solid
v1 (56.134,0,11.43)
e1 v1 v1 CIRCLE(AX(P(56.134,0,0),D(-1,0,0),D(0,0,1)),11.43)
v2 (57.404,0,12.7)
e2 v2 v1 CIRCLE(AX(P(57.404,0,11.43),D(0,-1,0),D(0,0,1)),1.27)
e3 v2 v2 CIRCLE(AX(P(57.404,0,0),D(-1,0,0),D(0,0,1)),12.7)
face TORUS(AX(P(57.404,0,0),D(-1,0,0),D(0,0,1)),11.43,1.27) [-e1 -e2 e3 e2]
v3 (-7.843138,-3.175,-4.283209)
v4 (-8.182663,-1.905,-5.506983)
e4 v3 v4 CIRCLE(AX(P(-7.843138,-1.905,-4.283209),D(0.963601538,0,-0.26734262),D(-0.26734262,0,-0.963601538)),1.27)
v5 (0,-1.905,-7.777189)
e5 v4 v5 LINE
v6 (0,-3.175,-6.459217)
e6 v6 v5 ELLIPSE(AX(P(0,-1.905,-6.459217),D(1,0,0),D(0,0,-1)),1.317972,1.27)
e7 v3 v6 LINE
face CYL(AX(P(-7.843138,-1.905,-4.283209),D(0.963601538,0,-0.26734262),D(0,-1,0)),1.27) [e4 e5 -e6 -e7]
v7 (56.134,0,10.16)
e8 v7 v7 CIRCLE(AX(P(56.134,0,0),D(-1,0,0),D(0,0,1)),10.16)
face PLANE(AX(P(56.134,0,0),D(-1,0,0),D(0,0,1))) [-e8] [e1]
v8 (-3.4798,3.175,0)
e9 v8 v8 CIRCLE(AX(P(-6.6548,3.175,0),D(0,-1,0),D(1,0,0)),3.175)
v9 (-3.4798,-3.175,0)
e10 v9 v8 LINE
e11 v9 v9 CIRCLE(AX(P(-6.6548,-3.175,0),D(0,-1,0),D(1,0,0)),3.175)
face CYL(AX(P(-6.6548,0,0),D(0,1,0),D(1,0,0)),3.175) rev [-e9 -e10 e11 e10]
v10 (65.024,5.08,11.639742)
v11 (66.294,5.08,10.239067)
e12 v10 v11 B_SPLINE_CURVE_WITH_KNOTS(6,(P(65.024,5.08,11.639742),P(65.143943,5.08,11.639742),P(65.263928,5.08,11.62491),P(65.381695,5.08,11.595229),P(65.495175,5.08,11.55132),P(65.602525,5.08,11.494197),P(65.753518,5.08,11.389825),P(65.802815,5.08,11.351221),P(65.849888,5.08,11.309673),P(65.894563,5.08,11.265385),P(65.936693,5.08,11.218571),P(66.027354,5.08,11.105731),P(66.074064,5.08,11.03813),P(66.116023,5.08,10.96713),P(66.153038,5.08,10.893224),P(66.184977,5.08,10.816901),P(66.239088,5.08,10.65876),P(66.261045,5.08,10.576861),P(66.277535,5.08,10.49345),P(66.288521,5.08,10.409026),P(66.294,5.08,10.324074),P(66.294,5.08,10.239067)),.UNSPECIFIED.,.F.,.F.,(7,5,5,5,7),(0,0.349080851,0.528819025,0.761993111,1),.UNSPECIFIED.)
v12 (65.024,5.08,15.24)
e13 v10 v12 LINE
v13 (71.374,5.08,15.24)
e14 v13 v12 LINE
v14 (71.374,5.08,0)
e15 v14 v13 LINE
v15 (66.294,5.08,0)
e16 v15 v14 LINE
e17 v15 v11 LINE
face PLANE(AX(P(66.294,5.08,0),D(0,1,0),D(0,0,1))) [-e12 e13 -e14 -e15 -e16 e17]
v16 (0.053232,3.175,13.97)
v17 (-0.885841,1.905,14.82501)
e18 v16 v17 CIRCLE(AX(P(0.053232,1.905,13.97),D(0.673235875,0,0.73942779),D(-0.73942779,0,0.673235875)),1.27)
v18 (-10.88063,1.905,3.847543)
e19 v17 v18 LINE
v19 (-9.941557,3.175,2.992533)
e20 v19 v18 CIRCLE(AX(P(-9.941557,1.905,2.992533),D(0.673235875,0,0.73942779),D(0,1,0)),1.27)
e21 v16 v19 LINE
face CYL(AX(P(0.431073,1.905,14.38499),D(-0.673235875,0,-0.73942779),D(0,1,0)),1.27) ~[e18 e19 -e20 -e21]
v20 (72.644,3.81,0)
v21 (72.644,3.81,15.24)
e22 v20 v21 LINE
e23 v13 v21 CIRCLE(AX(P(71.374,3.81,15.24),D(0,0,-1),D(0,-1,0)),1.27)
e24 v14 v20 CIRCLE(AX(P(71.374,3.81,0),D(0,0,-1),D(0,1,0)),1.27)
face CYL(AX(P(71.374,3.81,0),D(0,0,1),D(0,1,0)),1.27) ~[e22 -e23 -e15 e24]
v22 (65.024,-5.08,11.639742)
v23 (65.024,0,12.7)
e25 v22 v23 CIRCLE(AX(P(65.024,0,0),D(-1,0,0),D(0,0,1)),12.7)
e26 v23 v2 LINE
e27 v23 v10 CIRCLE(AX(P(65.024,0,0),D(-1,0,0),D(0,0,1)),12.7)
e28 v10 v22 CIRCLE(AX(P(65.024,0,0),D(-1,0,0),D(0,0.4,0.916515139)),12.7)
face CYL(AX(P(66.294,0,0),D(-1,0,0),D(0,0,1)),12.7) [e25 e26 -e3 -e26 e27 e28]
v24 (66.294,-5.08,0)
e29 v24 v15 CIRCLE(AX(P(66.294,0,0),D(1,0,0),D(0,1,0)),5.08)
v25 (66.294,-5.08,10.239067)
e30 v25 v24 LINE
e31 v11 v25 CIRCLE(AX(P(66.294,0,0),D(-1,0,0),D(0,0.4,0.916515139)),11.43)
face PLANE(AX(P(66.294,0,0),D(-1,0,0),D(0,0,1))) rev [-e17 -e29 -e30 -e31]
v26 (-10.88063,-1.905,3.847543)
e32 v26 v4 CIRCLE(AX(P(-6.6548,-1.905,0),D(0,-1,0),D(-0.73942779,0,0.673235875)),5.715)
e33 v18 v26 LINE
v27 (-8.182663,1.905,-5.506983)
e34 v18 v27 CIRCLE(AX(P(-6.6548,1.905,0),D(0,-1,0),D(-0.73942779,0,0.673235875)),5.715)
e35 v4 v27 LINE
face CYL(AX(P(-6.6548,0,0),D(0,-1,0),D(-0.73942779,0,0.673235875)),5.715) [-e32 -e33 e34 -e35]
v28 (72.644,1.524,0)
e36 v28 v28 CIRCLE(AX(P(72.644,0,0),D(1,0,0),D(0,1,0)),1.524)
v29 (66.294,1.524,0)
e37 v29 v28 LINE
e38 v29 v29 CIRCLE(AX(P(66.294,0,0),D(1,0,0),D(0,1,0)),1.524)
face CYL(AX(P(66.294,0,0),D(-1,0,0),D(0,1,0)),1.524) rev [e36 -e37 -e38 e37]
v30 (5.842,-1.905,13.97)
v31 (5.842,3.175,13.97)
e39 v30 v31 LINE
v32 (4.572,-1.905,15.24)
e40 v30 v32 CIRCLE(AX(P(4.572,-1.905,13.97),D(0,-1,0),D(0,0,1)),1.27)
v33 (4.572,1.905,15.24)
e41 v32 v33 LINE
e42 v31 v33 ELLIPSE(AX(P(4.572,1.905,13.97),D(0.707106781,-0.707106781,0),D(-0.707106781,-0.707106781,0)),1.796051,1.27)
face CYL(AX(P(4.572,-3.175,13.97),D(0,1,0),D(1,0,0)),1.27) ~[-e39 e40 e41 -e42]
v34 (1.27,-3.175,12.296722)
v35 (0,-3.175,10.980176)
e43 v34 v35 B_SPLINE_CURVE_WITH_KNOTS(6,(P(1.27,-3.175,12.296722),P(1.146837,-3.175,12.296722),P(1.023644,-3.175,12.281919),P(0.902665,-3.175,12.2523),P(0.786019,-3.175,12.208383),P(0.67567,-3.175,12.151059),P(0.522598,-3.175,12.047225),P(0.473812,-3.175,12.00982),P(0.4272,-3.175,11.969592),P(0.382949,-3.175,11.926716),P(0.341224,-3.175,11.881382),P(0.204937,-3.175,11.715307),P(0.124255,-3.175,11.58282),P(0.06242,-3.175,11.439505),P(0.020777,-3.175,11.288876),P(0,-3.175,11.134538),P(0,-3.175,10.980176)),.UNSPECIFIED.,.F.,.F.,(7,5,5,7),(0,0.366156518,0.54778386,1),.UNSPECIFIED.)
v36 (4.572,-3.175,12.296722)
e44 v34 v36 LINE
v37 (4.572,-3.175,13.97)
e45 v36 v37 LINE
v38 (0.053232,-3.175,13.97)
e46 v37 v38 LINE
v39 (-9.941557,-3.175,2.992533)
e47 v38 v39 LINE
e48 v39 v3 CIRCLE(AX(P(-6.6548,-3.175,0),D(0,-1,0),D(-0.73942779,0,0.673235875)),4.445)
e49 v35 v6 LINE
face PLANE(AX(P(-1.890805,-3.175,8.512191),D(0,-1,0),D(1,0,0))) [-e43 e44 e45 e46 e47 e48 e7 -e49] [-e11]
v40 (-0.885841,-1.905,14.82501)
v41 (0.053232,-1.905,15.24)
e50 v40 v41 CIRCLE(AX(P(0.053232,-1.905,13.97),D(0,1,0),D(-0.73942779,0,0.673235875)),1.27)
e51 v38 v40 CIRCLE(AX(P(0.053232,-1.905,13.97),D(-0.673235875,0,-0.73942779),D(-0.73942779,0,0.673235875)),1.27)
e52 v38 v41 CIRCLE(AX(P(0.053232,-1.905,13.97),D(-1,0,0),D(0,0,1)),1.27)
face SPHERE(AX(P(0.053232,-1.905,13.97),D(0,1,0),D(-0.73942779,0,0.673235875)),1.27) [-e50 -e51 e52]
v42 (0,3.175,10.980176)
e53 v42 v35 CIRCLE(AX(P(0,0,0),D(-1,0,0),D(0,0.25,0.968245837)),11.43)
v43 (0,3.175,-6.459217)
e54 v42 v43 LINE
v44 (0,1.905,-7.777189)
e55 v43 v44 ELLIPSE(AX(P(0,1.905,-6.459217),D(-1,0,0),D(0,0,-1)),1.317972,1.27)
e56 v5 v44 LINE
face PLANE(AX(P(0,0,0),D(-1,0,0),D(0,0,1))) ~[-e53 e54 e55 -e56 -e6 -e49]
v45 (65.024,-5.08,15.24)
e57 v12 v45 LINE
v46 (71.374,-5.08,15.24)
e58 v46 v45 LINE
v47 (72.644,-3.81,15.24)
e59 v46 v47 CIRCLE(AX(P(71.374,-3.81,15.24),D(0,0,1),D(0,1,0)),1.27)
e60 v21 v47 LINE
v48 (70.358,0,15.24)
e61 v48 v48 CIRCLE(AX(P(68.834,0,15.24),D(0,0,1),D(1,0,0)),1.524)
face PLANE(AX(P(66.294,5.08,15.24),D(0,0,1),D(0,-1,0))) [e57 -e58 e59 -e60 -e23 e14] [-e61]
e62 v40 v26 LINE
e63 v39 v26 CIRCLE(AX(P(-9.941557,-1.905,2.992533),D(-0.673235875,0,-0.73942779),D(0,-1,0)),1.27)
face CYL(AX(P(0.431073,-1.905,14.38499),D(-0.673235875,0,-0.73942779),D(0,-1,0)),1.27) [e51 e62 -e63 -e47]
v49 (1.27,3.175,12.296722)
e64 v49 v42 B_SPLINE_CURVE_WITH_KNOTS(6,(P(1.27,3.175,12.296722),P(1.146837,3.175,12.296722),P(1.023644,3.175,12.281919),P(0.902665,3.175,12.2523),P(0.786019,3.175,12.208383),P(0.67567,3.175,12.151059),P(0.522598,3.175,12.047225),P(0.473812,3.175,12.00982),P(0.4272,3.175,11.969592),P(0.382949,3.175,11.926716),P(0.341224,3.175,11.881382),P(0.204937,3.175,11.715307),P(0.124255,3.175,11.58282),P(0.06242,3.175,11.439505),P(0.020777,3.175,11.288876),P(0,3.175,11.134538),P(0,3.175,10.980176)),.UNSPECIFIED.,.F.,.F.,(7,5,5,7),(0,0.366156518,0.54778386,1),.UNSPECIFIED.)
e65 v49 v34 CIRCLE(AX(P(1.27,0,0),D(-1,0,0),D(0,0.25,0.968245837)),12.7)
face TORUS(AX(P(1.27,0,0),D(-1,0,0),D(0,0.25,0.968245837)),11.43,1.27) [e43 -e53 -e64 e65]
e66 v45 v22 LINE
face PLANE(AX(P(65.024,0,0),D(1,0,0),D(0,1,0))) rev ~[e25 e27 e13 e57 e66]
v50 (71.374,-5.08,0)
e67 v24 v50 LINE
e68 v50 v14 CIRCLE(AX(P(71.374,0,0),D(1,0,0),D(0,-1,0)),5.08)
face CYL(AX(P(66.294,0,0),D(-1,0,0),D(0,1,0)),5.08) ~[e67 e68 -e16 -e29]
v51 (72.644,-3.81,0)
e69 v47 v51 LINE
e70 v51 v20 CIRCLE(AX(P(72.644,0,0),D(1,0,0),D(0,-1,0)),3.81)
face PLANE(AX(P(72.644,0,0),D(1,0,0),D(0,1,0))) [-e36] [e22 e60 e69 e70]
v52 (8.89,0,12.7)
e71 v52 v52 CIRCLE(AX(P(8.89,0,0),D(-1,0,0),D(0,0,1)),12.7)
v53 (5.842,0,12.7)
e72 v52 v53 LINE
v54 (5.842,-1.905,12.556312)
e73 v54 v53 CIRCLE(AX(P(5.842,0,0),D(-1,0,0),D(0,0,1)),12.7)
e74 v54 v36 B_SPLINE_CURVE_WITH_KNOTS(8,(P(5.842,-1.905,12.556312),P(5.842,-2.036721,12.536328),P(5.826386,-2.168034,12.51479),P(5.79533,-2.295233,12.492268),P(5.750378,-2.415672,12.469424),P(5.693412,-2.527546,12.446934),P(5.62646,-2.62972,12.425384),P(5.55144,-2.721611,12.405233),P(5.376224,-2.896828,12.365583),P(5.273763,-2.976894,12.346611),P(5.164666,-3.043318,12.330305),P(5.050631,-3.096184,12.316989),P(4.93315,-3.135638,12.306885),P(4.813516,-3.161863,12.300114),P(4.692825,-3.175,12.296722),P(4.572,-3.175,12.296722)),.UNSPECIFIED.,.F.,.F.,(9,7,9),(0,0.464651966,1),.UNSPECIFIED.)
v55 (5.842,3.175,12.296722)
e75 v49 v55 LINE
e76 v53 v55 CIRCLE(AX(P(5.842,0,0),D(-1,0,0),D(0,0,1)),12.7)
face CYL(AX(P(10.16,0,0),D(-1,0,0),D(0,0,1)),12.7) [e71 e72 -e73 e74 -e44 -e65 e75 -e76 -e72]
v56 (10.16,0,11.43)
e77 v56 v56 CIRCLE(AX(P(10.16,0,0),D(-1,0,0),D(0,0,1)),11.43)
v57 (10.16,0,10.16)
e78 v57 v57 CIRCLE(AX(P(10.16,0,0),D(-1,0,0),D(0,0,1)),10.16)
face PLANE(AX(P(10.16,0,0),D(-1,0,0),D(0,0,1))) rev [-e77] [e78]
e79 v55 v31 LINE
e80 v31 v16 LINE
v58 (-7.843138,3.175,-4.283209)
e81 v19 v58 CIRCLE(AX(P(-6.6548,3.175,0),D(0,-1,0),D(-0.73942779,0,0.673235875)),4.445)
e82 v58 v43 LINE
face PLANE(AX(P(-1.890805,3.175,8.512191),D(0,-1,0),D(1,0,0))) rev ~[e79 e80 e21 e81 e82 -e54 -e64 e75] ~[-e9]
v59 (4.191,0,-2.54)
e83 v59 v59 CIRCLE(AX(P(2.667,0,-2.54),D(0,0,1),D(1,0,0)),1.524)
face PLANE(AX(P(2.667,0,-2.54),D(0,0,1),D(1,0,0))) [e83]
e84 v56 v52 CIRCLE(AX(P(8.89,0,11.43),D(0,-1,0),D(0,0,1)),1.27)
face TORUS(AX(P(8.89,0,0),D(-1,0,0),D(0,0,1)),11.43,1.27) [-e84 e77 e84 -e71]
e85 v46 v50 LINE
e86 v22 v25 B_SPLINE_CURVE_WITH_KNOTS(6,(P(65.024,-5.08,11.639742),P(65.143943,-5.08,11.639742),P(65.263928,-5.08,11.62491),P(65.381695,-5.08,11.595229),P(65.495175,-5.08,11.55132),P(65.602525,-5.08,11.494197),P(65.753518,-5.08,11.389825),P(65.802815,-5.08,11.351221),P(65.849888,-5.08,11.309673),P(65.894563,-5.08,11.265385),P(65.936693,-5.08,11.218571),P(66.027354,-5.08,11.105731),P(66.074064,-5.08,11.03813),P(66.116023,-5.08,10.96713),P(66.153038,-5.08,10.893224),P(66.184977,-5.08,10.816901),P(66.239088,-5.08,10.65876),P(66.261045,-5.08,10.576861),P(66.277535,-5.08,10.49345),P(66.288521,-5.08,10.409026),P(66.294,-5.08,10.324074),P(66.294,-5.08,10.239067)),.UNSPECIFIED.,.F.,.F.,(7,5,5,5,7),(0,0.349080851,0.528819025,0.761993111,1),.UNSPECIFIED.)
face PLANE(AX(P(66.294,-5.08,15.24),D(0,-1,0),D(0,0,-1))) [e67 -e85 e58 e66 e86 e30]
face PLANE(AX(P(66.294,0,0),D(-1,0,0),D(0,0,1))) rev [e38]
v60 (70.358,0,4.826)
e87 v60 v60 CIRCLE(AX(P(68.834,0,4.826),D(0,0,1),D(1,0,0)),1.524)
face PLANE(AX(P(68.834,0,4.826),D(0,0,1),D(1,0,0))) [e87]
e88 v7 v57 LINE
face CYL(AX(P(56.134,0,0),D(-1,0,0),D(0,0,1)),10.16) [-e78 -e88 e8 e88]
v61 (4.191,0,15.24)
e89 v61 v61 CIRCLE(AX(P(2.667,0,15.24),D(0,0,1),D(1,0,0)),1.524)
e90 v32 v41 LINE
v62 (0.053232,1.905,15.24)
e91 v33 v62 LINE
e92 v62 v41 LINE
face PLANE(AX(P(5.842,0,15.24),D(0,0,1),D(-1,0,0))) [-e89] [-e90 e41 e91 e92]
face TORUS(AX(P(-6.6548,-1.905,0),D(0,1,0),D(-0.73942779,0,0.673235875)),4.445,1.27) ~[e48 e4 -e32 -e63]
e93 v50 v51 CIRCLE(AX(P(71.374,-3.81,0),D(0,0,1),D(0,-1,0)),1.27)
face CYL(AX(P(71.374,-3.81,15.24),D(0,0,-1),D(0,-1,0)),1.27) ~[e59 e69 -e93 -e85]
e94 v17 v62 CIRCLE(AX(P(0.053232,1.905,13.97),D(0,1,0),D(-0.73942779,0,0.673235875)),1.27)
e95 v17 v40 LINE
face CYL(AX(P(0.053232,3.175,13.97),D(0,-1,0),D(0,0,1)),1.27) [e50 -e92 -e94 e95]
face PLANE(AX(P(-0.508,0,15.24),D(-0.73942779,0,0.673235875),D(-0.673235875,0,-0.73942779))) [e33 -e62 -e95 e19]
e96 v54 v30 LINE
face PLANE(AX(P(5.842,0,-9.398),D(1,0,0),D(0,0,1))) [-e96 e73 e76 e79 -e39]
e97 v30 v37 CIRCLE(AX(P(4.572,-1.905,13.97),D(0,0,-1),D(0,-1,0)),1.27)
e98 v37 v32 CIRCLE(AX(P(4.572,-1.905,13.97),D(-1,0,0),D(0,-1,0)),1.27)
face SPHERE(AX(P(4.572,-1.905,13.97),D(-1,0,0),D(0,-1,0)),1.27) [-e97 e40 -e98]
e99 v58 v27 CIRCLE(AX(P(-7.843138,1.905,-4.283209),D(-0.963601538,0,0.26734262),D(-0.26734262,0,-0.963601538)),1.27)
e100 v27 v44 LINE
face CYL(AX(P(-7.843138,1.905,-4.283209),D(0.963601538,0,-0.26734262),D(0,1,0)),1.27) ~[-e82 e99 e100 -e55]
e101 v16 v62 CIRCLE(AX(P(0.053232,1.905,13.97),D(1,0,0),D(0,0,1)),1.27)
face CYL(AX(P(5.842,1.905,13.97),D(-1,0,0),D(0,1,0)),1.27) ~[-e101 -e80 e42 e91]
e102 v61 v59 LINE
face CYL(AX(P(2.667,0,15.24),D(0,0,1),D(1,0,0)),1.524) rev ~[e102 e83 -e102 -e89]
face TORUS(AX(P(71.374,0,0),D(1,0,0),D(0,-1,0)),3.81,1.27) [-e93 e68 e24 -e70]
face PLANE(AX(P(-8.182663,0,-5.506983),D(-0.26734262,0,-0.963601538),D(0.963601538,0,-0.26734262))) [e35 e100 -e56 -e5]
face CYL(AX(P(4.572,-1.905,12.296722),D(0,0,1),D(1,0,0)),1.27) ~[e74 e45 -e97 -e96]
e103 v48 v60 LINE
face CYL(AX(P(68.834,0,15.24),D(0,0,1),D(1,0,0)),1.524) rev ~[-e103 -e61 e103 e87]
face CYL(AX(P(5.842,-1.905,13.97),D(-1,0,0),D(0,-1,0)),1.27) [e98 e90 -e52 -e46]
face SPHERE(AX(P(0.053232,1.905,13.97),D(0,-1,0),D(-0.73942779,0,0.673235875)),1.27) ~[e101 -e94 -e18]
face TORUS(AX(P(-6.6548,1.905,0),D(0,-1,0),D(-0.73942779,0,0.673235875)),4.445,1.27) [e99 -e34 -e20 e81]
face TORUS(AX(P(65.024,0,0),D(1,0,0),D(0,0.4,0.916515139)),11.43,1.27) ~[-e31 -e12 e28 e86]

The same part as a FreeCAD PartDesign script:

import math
import FreeCAD as App
import Part
import Sketcher

V = App.Vector
Q = App.Units.Quantity


def edges_at(feature, points):
    """Names of the edges that pass closest to the given points."""
    edges = feature.Shape.Edges
    near = lambda p: min(range(len(edges)), key=lambda i: edges[i].distToShape(Part.Vertex(*p))[0])
    return sorted({f"Edge{near(p) + 1}" for p in points})

doc = App.newDocument("Part")
body = doc.addObject("PartDesign::Body", "Body")

# Sketch on XZ plane
sketch1 = body.newObject("Sketcher::SketchObject", "Sketch")
sketch1.AttachmentSupport = (doc.getObject("XZ_Plane"), [""])
sketch1.MapMode = "FlatFace"
sketch1.addGeometry([
    Part.LineSegment(V(5.842, 12.7, 0), V(5.842, 0, 0)),  # 0
    Part.LineSegment(V(5.842, 0, 0), V(66.294, 0, 0)),  # 1
    Part.LineSegment(V(66.294, 0, 0), V(66.294, 12.7, 0)),  # 2
    Part.LineSegment(V(66.294, 12.7, 0), V(56.134, 12.7, 0)),  # 3
    Part.LineSegment(V(56.134, 12.7, 0), V(56.134, 10.16, 0)),  # 4
    Part.LineSegment(V(56.134, 10.16, 0), V(10.16, 10.16, 0)),  # 5
    Part.LineSegment(V(10.16, 10.16, 0), V(10.16, 12.7, 0)),  # 6
    Part.LineSegment(V(10.16, 12.7, 0), V(5.842, 12.7, 0)),  # 7
], False)
sketch1.addConstraint([
    Sketcher.Constraint("Coincident", 0, 2, 1, 1),
    Sketcher.Constraint("Coincident", 1, 2, 2, 1),
    Sketcher.Constraint("Coincident", 2, 2, 3, 1),
    Sketcher.Constraint("Coincident", 3, 2, 4, 1),
    Sketcher.Constraint("Coincident", 4, 2, 5, 1),
    Sketcher.Constraint("Coincident", 5, 2, 6, 1),
    Sketcher.Constraint("Coincident", 6, 2, 7, 1),
    Sketcher.Constraint("Coincident", 7, 2, 0, 1),
    Sketcher.Constraint("Vertical", 0),
    Sketcher.Constraint("Horizontal", 1),
    Sketcher.Constraint("Vertical", 2),
    Sketcher.Constraint("Horizontal", 3),
    Sketcher.Constraint("Vertical", 4),
    Sketcher.Constraint("Horizontal", 5),
    Sketcher.Constraint("Vertical", 6),
    Sketcher.Constraint("Horizontal", 7),
    Sketcher.Constraint("PointOnObject", 0, 2, -1),
    Sketcher.Constraint("Horizontal", 3, 2, 6, 2),
    Sketcher.Constraint("DistanceX", 3, 2, 3, 1, Q("0.4 in")),
    Sketcher.Constraint("DistanceY", 0, 2, 0, 1, Q("0.5 in")),
    Sketcher.Constraint("DistanceY", 4, 2, 4, 1, Q("0.1 in")),
    Sketcher.Constraint("DistanceX", 1, 1, 1, 2, Q("2.38 in")),
    Sketcher.Constraint("DistanceX", 5, 2, 5, 1, Q("1.81 in")),
    Sketcher.Constraint("DistanceX", -1, 1, 5, 2, Q("0.4 in")),
])
revolution = body.newObject("PartDesign::Revolution", "Revolution")
revolution.Profile = sketch1
revolution.ReferenceAxis = (sketch1, ["H_Axis"])
revolution.Angle = 360

# Sketch on XZ plane
sketch2 = body.newObject("Sketcher::SketchObject", "Sketch001")
sketch2.AttachmentSupport = (doc.getObject("XZ_Plane"), [""])
sketch2.MapMode = "FlatFace"
sketch2.addGeometry([
    Part.LineSegment(V(0, 12.7, 0), V(0, 0, 0)),
    Part.LineSegment(V(0, 0, 0), V(5.842, 0, 0)),
    Part.LineSegment(V(5.842, 0, 0), V(5.842, 12.7, 0)),
    Part.LineSegment(V(5.842, 12.7, 0), V(0, 12.7, 0)),
], False)
sketch2.addConstraint([
    Sketcher.Constraint("Coincident", 0, 2, 1, 1),
    Sketcher.Constraint("Coincident", 1, 2, 2, 1),
    Sketcher.Constraint("Coincident", 2, 2, 3, 1),
    Sketcher.Constraint("Coincident", 3, 2, 0, 1),
    Sketcher.Constraint("Vertical", 0),
    Sketcher.Constraint("Horizontal", 1),
    Sketcher.Constraint("Vertical", 2),
    Sketcher.Constraint("Horizontal", 3),
    Sketcher.Constraint("Coincident", 0, 2, -1, 1),
    Sketcher.Constraint("DistanceY", 0, 2, 0, 1, Q("0.5 in")),
    Sketcher.Constraint("DistanceX", 1, 1, 1, 2, Q("0.23 in")),
])
revolution2 = body.newObject("PartDesign::Revolution", "Revolution001")
revolution2.Profile = sketch2
revolution2.ReferenceAxis = (sketch2, ["H_Axis"])
revolution2.Angle = 360

# Sketch on XZ plane
sketch3 = body.newObject("Sketcher::SketchObject", "Sketch002")
sketch3.AttachmentSupport = (doc.getObject("XZ_Plane"), [""])
sketch3.MapMode = "FlatFace"
sketch3.addGeometry([
    Part.LineSegment(V(5.842, 15.24, 0), V(-0.508, 15.24, 0)),  # 0
    Part.LineSegment(V(-0.508, 15.24, 0), V(-10.88063, 3.847543, 0)),  # 1
    Part.ArcOfCircle(Part.Circle(V(-6.6548, 0, 0), V(0, 0, 1), 5.715), math.radians(137.682695), math.radians(254.493802)),  # 2
    Part.LineSegment(V(-8.182663, -5.506983, 0), V(5.842, -9.398, 0)),  # 3
    Part.LineSegment(V(5.842, -9.398, 0), V(5.842, 15.24, 0)),  # 4
    Part.Circle(V(-6.6548, 0, 0), V(0, 0, 1), 3.175),  # 5
], False)
sketch3.addConstraint([
    Sketcher.Constraint("Coincident", 0, 2, 1, 1),
    Sketcher.Constraint("Tangent", 1, 2, 2, 1),
    Sketcher.Constraint("Tangent", 2, 2, 3, 1),
    Sketcher.Constraint("Coincident", 3, 2, 4, 1),
    Sketcher.Constraint("Coincident", 4, 2, 0, 1),
    Sketcher.Constraint("Horizontal", 0),
    Sketcher.Constraint("Vertical", 4),
    Sketcher.Constraint("Coincident", 5, 3, 2, 3),
    Sketcher.Constraint("PointOnObject", 2, 3, -1),
    Sketcher.Constraint("Diameter", 5, Q("0.25 in")),
    Sketcher.Constraint("Radius", 2, Q("0.225 in")),
    Sketcher.Constraint("DistanceX", 0, 2, 0, 1, Q("0.25 in")),
    Sketcher.Constraint("DistanceY", 4, 1, 4, 2, Q("0.97 in")),
    Sketcher.Constraint("DistanceY", -1, 1, 0, 2, Q("0.6 in")),
    Sketcher.Constraint("DistanceX", 0, 2, -1, 1, Q("0.02 in")),
    Sketcher.Constraint("DistanceX", 2, 3, -1, 1, Q("0.262 in")),
])
pad1 = body.newObject("PartDesign::Pad", "Pad")
pad1.Profile = sketch3
pad1.Length = Q("0.25 in")
pad1.Midplane = True

# Sketch on YZ plane
sketch4 = body.newObject("Sketcher::SketchObject", "Sketch003")
sketch4.AttachmentSupport = (doc.getObject("YZ_Plane"), [""])
sketch4.MapMode = "FlatFace"
sketch4.AttachmentOffset = App.Placement(V(0, 0, 2.61 * 25.4), App.Rotation())
sketch4.addGeometry([
    Part.ArcOfCircle(Part.Circle(V(0, 0, 0), V(0, 0, 1), 5.08), math.radians(180), math.radians(360)),  # 0
    Part.LineSegment(V(5.08, 0, 0), V(5.08, 15.24, 0)),  # 1
    Part.LineSegment(V(5.08, 15.24, 0), V(-5.08, 15.24, 0)),  # 2
    Part.LineSegment(V(-5.08, 15.24, 0), V(-5.08, 0, 0)),  # 3
    Part.Circle(V(0, 0, 0), V(0, 0, 1), 1.524),  # 4
], False)
sketch4.addConstraint([
    Sketcher.Constraint("Tangent", 0, 2, 1, 1),
    Sketcher.Constraint("Coincident", 1, 2, 2, 1),
    Sketcher.Constraint("Coincident", 2, 2, 3, 1),
    Sketcher.Constraint("Tangent", 3, 2, 0, 1),
    Sketcher.Constraint("Vertical", 1),
    Sketcher.Constraint("Horizontal", 2),
    Sketcher.Constraint("Vertical", 3),
    Sketcher.Constraint("Coincident", 0, 3, -1, 1),
    Sketcher.Constraint("Coincident", 4, 3, -1, 1),
    Sketcher.Constraint("Radius", 0, Q("0.2 in")),
    Sketcher.Constraint("Diameter", 4, Q("0.12 in")),
    Sketcher.Constraint("DistanceY", 1, 1, 1, 2, Q("0.6 in")),
])
pad2 = body.newObject("PartDesign::Pad", "Pad001")
pad2.Profile = sketch4
pad2.Type = "TwoLengths"
pad2.Length = Q("0.25 in")
pad2.Length2 = Q("0.05 in")

# Sketch on XY plane
sketch5 = body.newObject("Sketcher::SketchObject", "Sketch004")
sketch5.AttachmentSupport = (doc.getObject("XY_Plane"), [""])
sketch5.MapMode = "FlatFace"
sketch5.AttachmentOffset = App.Placement(V(0, 0, 0.6 * 25.4), App.Rotation())
sketch5.addGeometry(Part.Circle(V(68.834, 0, 0), V(0, 0, 1), 1.524), False)
sketch5.addConstraint([
    Sketcher.Constraint("PointOnObject", 0, 3, -1),
    Sketcher.Constraint("Diameter", 0, Q("0.12 in")),
    Sketcher.Constraint("DistanceX", -1, 1, 0, 3, Q("2.71 in")),
])
pocket1 = body.newObject("PartDesign::Pocket", "Pocket")
pocket1.Profile = sketch5
pocket1.Length = Q("0.41 in")

# Sketch on XY plane
sketch6 = body.newObject("Sketcher::SketchObject", "Sketch005")
sketch6.AttachmentSupport = (doc.getObject("XY_Plane"), [""])
sketch6.MapMode = "FlatFace"
sketch6.AttachmentOffset = App.Placement(V(0, 0, 0.6 * 25.4), App.Rotation())
sketch6.addGeometry(Part.Circle(V(2.667, 0, 0), V(0, 0, 1), 1.524), False)
sketch6.addConstraint([
    Sketcher.Constraint("PointOnObject", 0, 3, -1),
    Sketcher.Constraint("Diameter", 0, Q("0.12 in")),
    Sketcher.Constraint("DistanceX", -1, 1, 0, 3, Q("0.105 in")),
])
pocket2 = body.newObject("PartDesign::Pocket", "Pocket001")
pocket2.Profile = sketch6
pocket2.Length = Q("0.7 in")
doc.recompute()

fillet = body.newObject("PartDesign::Fillet", "Fillet")
fillet.Base = (pocket2, edges_at(pocket2, [
    (66.294, 0, -12.7),
    (56.134, 0, -12.7),
    (10.16, 0, -12.7),
    (0, 0, -12.7),
]))
fillet.Radius = Q("0.05 in")
doc.recompute()

fillet2 = body.newObject("PartDesign::Fillet", "Fillet001")
fillet2.Base = (fillet, edges_at(fillet, [(72.644, -5.08, 7.62)]))
fillet2.Radius = Q("0.05 in")
doc.recompute()

fillet3 = body.newObject("PartDesign::Fillet", "Fillet002")
fillet3.Base = (fillet2, edges_at(fillet2, [
    (-12.146, -3.175, -1.584),
    (-5.694, -3.175, 9.544),
    (2.667, -3.175, 15.24),
    (5.842, -3.175, 13.768),
    (-4.091, -3.175, -6.642),
    (-12.146, 3.175, -1.584),
    (-5.694, 3.175, 9.544),
    (2.667, 3.175, 15.24),
    (5.842, 0, 15.24),
    (-0.508, 0, 15.24),
    (-4.091, 3.175, -6.642),
]))
fillet3.Radius = Q("0.05 in")

doc.recompute()
